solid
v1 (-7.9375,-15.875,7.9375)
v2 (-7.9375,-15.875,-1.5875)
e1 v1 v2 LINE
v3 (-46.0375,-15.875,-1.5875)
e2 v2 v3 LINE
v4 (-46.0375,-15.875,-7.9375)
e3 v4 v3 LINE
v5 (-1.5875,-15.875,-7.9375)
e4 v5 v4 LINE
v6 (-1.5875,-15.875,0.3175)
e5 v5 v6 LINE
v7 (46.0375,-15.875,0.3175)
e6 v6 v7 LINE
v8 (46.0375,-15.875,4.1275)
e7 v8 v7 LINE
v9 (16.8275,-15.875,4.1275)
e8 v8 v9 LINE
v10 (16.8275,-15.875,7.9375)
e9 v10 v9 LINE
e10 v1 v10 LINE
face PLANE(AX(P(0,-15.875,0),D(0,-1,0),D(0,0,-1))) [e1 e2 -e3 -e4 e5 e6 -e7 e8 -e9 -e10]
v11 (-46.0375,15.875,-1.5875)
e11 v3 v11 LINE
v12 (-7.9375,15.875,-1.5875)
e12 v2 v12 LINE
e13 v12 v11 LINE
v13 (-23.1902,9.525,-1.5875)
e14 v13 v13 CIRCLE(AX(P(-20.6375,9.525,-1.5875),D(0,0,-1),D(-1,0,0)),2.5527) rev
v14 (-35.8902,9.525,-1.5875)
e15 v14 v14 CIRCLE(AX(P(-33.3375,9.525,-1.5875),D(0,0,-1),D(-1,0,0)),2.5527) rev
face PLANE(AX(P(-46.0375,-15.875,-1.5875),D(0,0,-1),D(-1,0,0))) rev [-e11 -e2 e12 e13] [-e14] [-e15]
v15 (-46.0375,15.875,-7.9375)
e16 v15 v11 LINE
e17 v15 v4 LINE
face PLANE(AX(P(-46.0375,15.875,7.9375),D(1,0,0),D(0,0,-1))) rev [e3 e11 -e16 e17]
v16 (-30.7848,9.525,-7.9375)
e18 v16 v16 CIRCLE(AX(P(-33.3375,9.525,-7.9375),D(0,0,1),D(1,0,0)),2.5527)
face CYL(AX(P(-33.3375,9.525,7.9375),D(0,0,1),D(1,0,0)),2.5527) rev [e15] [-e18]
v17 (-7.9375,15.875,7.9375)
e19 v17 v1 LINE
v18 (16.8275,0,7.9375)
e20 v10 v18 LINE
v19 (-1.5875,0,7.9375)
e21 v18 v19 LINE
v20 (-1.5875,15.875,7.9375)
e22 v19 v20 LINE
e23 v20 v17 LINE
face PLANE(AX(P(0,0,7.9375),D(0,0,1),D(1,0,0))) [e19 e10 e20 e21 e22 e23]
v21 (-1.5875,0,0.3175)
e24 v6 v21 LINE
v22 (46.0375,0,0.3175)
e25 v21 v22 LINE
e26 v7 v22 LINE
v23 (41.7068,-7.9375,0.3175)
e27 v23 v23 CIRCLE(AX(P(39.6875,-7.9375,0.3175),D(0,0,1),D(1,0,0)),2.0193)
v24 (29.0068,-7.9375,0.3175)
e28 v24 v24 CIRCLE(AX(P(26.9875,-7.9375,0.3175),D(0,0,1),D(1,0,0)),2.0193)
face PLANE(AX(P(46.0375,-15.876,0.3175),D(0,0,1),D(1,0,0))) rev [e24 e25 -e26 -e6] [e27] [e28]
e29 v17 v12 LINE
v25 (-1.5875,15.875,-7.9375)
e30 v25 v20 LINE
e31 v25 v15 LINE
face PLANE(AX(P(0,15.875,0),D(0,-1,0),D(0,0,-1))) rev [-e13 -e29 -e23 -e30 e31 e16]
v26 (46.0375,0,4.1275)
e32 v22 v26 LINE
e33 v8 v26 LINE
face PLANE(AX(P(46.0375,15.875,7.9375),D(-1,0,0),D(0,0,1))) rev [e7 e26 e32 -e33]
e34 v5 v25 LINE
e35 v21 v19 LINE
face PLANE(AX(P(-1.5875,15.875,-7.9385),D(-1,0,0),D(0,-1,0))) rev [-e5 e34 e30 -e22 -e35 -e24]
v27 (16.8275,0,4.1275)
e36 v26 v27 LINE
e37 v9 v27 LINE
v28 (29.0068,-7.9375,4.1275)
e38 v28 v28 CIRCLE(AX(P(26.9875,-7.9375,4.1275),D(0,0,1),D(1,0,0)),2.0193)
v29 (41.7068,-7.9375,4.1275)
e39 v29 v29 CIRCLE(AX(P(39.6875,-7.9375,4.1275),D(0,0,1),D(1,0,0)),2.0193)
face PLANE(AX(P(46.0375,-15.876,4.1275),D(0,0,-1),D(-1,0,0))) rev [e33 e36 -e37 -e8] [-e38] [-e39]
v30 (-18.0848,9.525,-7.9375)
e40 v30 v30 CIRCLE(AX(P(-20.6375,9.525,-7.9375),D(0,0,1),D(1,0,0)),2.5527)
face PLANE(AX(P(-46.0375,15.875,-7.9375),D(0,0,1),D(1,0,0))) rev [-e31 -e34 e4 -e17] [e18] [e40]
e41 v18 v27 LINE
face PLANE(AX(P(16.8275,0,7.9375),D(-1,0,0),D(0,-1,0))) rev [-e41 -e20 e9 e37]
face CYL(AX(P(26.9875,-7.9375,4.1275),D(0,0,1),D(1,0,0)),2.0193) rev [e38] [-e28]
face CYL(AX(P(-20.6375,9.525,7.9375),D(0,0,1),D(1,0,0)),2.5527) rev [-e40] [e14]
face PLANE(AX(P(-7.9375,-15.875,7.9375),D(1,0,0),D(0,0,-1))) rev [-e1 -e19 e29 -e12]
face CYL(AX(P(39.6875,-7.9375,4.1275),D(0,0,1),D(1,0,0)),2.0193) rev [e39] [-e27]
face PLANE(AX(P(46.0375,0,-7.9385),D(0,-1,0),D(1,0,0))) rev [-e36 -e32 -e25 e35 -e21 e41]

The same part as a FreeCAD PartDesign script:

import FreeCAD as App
import Part
import Sketcher
Q = App.Units.Quantity


def add_polygon(sketch, points):
    """Adds a closed chain of lines whose ends are joined by coincident constraints."""
    first, n = sketch.GeometryCount, len(points)
    for a, b in zip(points, points[1:] + points[:1]):
        sketch.addGeometry(Part.LineSegment(App.Vector(*a, 0), App.Vector(*b, 0)), False)
    for i in range(n):
        sketch.addConstraint(Sketcher.Constraint("Coincident", first + i, 2, first + (i + 1) % n, 1))

doc = App.newDocument("Part")
body = doc.addObject("PartDesign::Body", "Body")

sketch1 = body.newObject("Sketcher::SketchObject", "Sketch")
sketch1.AttachmentSupport = (doc.getObject("XZ_Plane"), [""])
sketch1.MapMode = "FlatFace"
add_polygon(sketch1, [(-46, -8), (-46, 8), (46, 8), (46, -8)])
sketch1.addConstraint([
    Sketcher.Constraint("Vertical", 0),
    Sketcher.Constraint("Horizontal", 1),
    Sketcher.Constraint("Vertical", 2),
    Sketcher.Constraint("Horizontal", 3),
    Sketcher.Constraint("Symmetric", 0, 2, 2, 2, -1, 1),
    Sketcher.Constraint("DistanceX", 1, 1, 1, 2, Q("3.625 in")),
    Sketcher.Constraint("DistanceY", 0, 1, 0, 2, Q("0.625 in")),
])
pad1 = body.newObject("PartDesign::Pad", "Pad")
pad1.Profile = sketch1
pad1.Length = Q("1.25 in")
pad1.Midplane = True

sketch2 = body.newObject("Sketcher::SketchObject", "Sketch001")
sketch2.AttachmentSupport = (doc.getObject("XY_Plane"), [""])
sketch2.MapMode = "FlatFace"
sketch2.AttachmentOffset = App.Placement(App.Vector(0, 0, 0.3125 * 25.4), App.Rotation())
add_polygon(sketch2, [(-2, 16), (-2, 0), (46, 0), (46, 16)])
sketch2.addConstraint([
    Sketcher.Constraint("Vertical", 0),
    Sketcher.Constraint("Horizontal", 1),
    Sketcher.Constraint("Vertical", 2),
    Sketcher.Constraint("Horizontal", 3),
    Sketcher.Constraint("PointOnObject", 0, 2, -1),
    Sketcher.Constraint("DistanceX", 1, 1, 1, 2, Q("1.875 in")),
    Sketcher.Constraint("DistanceY", 0, 2, 0, 1, Q("0.625 in")),
    Sketcher.Constraint("DistanceX", 0, 2, -1, 1, Q("0.0625 in")),
])
pocket1 = body.newObject("PartDesign::Pocket", "Pocket")
pocket1.Profile = sketch2
pocket1.Type = "UpToFirst"

sketch3 = body.newObject("Sketcher::SketchObject", "Sketch002")
sketch3.AttachmentSupport = (doc.getObject("XY_Plane"), [""])
sketch3.MapMode = "FlatFace"
sketch3.AttachmentOffset = App.Placement(App.Vector(0, 0, 0.3125 * 25.4), App.Rotation())
sketch3.addGeometry([
    Part.Circle(App.Vector(-33.3, 9.5, 0), App.Vector(0, 0, 1), 2.6),
    Part.Circle(App.Vector(-20.6, 9.5, 0), App.Vector(0, 0, 1), 2.6),
], False)
sketch3.addConstraint([
    Sketcher.Constraint("Equal", 0, 1),
    Sketcher.Constraint("Horizontal", 0, 3, 1, 3),
    Sketcher.Constraint("Diameter", 0, Q("0.201 in")),
    Sketcher.Constraint("DistanceX", 0, 3, 1, 3, Q("0.5 in")),
    Sketcher.Constraint("DistanceX", 0, 3, -1, 1, Q("1.3125 in")),
    Sketcher.Constraint("DistanceY", -1, 1, 0, 3, Q("0.375 in")),
])
doc.recompute()
hole = body.newObject("PartDesign::Hole", "Hole")
hole.Profile = sketch3
hole.ThreadType = "None"
hole.Diameter = Q("0.201 in")
hole.DepthType = "ThroughAll"

sketch4 = body.newObject("Sketcher::SketchObject", "Sketch003")
sketch4.AttachmentSupport = (doc.getObject("XZ_Plane"), [""])
sketch4.MapMode = "FlatFace"
add_polygon(sketch4, [(-2, -8), (-2, 0), (46, 0), (46, -8)])
sketch4.addConstraint([
    Sketcher.Constraint("Vertical", 0),
    Sketcher.Constraint("Horizontal", 1),
    Sketcher.Constraint("Vertical", 2),
    Sketcher.Constraint("Horizontal", 3),
    Sketcher.Constraint("DistanceX", 1, 1, 1, 2, Q("1.875 in")),
    Sketcher.Constraint("DistanceY", 0, 1, 0, 2, Q("0.325 in")),
    Sketcher.Constraint("DistanceX", 0, 2, -1, 1, Q("0.0625 in")),
    Sketcher.Constraint("DistanceY", 2, 2, -1, 1, Q("0.3125 in")),
])
pocket2 = body.newObject("PartDesign::Pocket", "Pocket001")
pocket2.Profile = sketch4
pocket2.Type = "UpToFirst"
pocket2.Reversed = True

sketch5 = body.newObject("Sketcher::SketchObject", "Sketch004")
sketch5.AttachmentSupport = (doc.getObject("XZ_Plane"), [""])
sketch5.MapMode = "FlatFace"
add_polygon(sketch5, [(-1.6, 4.1), (-1.6, 7.9), (46, 7.9), (46, 4.1)])
sketch5.addConstraint([
    Sketcher.Constraint("Vertical", 0),
    Sketcher.Constraint("Horizontal", 1),
    Sketcher.Constraint("Vertical", 2),
    Sketcher.Constraint("Horizontal", 3),
    Sketcher.Constraint("DistanceY", 0, 1, 0, 2, Q("0.15 in")),
    Sketcher.Constraint("DistanceX", 1, 1, 1, 2, Q("1.875 in")),
    Sketcher.Constraint("DistanceX", 0, 2, -1, 1, Q("0.0625 in")),
    Sketcher.Constraint("DistanceY", -1, 1, 0, 2, Q("0.3125 in")),
])
pocket3 = body.newObject("PartDesign::Pocket", "Pocket002")
pocket3.Profile = sketch5
pocket3.Type = "UpToFirst"
pocket3.Reversed = True

sketch6 = body.newObject("Sketcher::SketchObject", "Sketch005")
sketch6.AttachmentSupport = (doc.getObject("XZ_Plane"), [""])
sketch6.MapMode = "FlatFace"
sketch6.AttachmentOffset = App.Placement(App.Vector(0, 0, -0.625 * 25.4), App.Rotation())
add_polygon(sketch6, [(-46, -2), (-46, 8), (-8, 8), (-8, -2)])
sketch6.addConstraint([
    Sketcher.Constraint("Vertical", 0),
    Sketcher.Constraint("Horizontal", 1),
    Sketcher.Constraint("Vertical", 2),
    Sketcher.Constraint("Horizontal", 3),
    Sketcher.Constraint("DistanceX", 1, 1, 1, 2, Q("1.5 in")),
    Sketcher.Constraint("DistanceY", 0, 1, 0, 2, Q("0.375 in")),
    Sketcher.Constraint("DistanceX", 0, 2, -1, 1, Q("1.8125 in")),
    Sketcher.Constraint("DistanceY", -1, 1, 0, 2, Q("0.3125 in")),
])
pocket4 = body.newObject("PartDesign::Pocket", "Pocket003")
pocket4.Profile = sketch6
pocket4.Type = "ThroughAll"
pocket4.Reversed = True

sketch7 = body.newObject("Sketcher::SketchObject", "Sketch006")
sketch7.AttachmentSupport = (doc.getObject("XZ_Plane"), [""])
sketch7.MapMode = "FlatFace"
sketch7.AttachmentOffset = App.Placement(App.Vector(0, 0, -0.625 * 25.4), App.Rotation())
add_polygon(sketch7, [(-7.9, 4.1), (-7.9, 7.9), (-1.6, 7.9), (-1.6, 4.1)])
sketch7.addConstraint([
    Sketcher.Constraint("Vertical", 0),
    Sketcher.Constraint("Horizontal", 1),
    Sketcher.Constraint("Vertical", 2),
    Sketcher.Constraint("Horizontal", 3),
    Sketcher.Constraint("DistanceX", 1, 1, 1, 2, Q("0.25 in")),
    Sketcher.Constraint("DistanceY", 0, 1, 0, 2, Q("0.15 in")),
    Sketcher.Constraint("DistanceX", 0, 2, -1, 1, Q("0.3125 in")),
    Sketcher.Constraint("DistanceY", -1, 1, 0, 2, Q("0.3125 in")),
])
pocket5 = body.newObject("PartDesign::Pocket", "Pocket004")
pocket5.Profile = sketch7
pocket5.Type = "ThroughAll"
pocket5.Reversed = True

sketch8 = body.newObject("Sketcher::SketchObject", "Sketch007")
sketch8.AttachmentSupport = (doc.getObject("XY_Plane"), [""])
sketch8.MapMode = "FlatFace"
sketch8.AttachmentOffset = App.Placement(App.Vector(0, 0, 0.1625 * 25.4), App.Rotation())
sketch8.addGeometry([
    Part.Circle(App.Vector(39.7, -7.9, 0), App.Vector(0, 0, 1), 2),
    Part.Circle(App.Vector(27, -7.9, 0), App.Vector(0, 0, 1), 2),
], False)
sketch8.addConstraint([
    Sketcher.Constraint("Equal", 0, 1),
    Sketcher.Constraint("Horizontal", 0, 3, 1, 3),
    Sketcher.Constraint("Diameter", 0, Q("0.159 in")),
    Sketcher.Constraint("DistanceX", 1, 3, 0, 3, Q("0.5 in")),
    Sketcher.Constraint("DistanceX", -1, 1, 0, 3, Q("1.5625 in")),
    Sketcher.Constraint("DistanceY", 0, 3, -1, 1, Q("0.3125 in")),
])
doc.recompute()
hole2 = body.newObject("PartDesign::Hole", "Hole001")
hole2.Profile = sketch8
hole2.ThreadType = "None"
hole2.Diameter = Q("0.159 in")
hole2.DepthType = "ThroughAll"

sketch9 = body.newObject("Sketcher::SketchObject", "Sketch008")
sketch9.AttachmentSupport = (doc.getObject("XY_Plane"), [""])
sketch9.MapMode = "FlatFace"
sketch9.AttachmentOffset = App.Placement(App.Vector(0, 0, 0.1625 * 25.4), App.Rotation())
add_polygon(sketch9, [(-8, 0), (-8, -16), (17, -16), (17, 0)])
sketch9.addConstraint([
    Sketcher.Constraint("Vertical", 0),
    Sketcher.Constraint("Horizontal", 1),
    Sketcher.Constraint("Vertical", 2),
    Sketcher.Constraint("Horizontal", 3),
    Sketcher.Constraint("PointOnObject", 2, 2, -1),
    Sketcher.Constraint("DistanceX", 1, 1, 1, 2, Q("0.975 in")),
    Sketcher.Constraint("DistanceY", 0, 2, 0, 1, Q("0.625 in")),
    Sketcher.Constraint("DistanceX", 0, 2, -1, 1, Q("0.3125 in")),
])
pad2 = body.newObject("PartDesign::Pad", "Pad001")
pad2.Profile = sketch9
pad2.Length = Q("0.15 in")

sketch10 = body.newObject("Sketcher::SketchObject", "Sketch009")
sketch10.AttachmentSupport = (doc.getObject("XY_Plane"), [""])
sketch10.MapMode = "FlatFace"
sketch10.AttachmentOffset = App.Placement(App.Vector(0, 0, 0.1625 * 25.4), App.Rotation())
add_polygon(sketch10, [(-8, 16), (-8, 0), (-2, 0), (-2, 16)])
sketch10.addConstraint([
    Sketcher.Constraint("Vertical", 0),
    Sketcher.Constraint("Horizontal", 1),
    Sketcher.Constraint("Vertical", 2),
    Sketcher.Constraint("Horizontal", 3),
    Sketcher.Constraint("PointOnObject", 0, 2, -1),
    Sketcher.Constraint("DistanceX", 1, 1, 1, 2, Q("0.25 in")),
    Sketcher.Constraint("DistanceY", 0, 2, 0, 1, Q("0.625 in")),
    Sketcher.Constraint("DistanceX", 0, 2, -1, 1, Q("0.3125 in")),
])
pad3 = body.newObject("PartDesign::Pad", "Pad002")
pad3.Profile = sketch10
pad3.Length = Q("0.15 in")

doc.recompute()
